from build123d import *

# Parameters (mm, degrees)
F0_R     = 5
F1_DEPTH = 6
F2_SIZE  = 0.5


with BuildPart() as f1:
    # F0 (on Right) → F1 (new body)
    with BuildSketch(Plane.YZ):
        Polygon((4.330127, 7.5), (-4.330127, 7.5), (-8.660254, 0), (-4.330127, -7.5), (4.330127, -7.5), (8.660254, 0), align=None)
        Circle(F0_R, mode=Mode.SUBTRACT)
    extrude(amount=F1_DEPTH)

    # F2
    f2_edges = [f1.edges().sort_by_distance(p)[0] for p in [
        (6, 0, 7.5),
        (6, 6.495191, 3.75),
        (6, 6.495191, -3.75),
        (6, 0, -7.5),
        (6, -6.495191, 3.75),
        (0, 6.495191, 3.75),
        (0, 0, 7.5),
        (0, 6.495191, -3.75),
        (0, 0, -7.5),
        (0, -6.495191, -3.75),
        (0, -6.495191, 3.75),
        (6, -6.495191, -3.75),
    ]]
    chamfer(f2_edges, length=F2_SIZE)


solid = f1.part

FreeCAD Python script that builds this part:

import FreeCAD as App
import Part
import Sketcher
from FreeCAD import Vector
Q = App.Units.Quantity


def edges_at(feature, points):
    """Names of the edges that pass closest to the given points."""
    edges = feature.Shape.Edges
    near = lambda p: min(range(len(edges)), key=lambda i: edges[i].distToShape(Part.Vertex(*p))[0])
    return sorted({f"Edge{near(p) + 1}" for p in points})

doc = App.newDocument("Part")
body = doc.addObject("PartDesign::Body", "Body")

# Sketch on YZ plane
sketch1 = doc.addObject("Sketcher::SketchObject", "Sketch")
body.addObject(sketch1)
sketch1.AttachmentSupport = (doc.YZ_Plane, [""])
sketch1.MapMode = "FlatFace"
sketch1.addGeometry([
    Part.LineSegment(Vector(4, 8, 0), Vector(-4, 8, 0)),  # 0
    Part.LineSegment(Vector(-4, 8, 0), Vector(-9, 0, 0)),  # 1
    Part.LineSegment(Vector(-9, 0, 0), Vector(-4, -8, 0)),  # 2
    Part.LineSegment(Vector(-4, -8, 0), Vector(4, -8, 0)),  # 3
    Part.LineSegment(Vector(4, -8, 0), Vector(9, 0, 0)),  # 4
    Part.LineSegment(Vector(9, 0, 0), Vector(4, 8, 0)),  # 5
    Part.Circle(Vector(0, 0, 0), Vector(0, 0, 1), 5),  # 6
], False)
sketch1.addConstraint([
    Sketcher.Constraint("Coincident", 0, 2, 1, 1),
    Sketcher.Constraint("Coincident", 1, 2, 2, 1),
    Sketcher.Constraint("Coincident", 2, 2, 3, 1),
    Sketcher.Constraint("Coincident", 3, 2, 4, 1),
    Sketcher.Constraint("Coincident", 4, 2, 5, 1),
    Sketcher.Constraint("Coincident", 5, 2, 0, 1),
    Sketcher.Constraint("Horizontal", 0),
    Sketcher.Constraint("Horizontal", 3),
    Sketcher.Constraint("Coincident", 6, 3, -1, 1),
    Sketcher.Constraint("Symmetric", 0, 2, 3, 2, -1, 1),
    Sketcher.Constraint("Symmetric", 1, 2, 4, 2, -1, 1),
    Sketcher.Constraint("PointOnObject", 1, 2, -1),
    Sketcher.Constraint("Parallel", 2, 5),
    Sketcher.Constraint("Vertical", 0, 2, 2, 2),
    Sketcher.Constraint("Diameter", 6, Q("10 mm")),
    Sketcher.Constraint("Angle", 1, Q("-120 deg")),
    Sketcher.Constraint("DistanceY", 2, 2, 0, 2, Q("15 mm")),
    Sketcher.Constraint("DistanceX", 0, 2, 0, 1, Q("8.660254 mm")),
])
pad1 = doc.addObject("PartDesign::Pad", "Pad")
body.addObject(pad1)
pad1.Profile = sketch1
pad1.Length = 6
doc.recompute()

chamfer = doc.addObject("PartDesign::Chamfer", "Chamfer")
body.addObject(chamfer)
chamfer.Base = (pad1, edges_at(pad1, [
    (6, 0, 7.5),
    (6, 6.495, 3.75),
    (6, 6.495, -3.75),
    (6, 0, -7.5),
    (6, -6.495, 3.75),
    (0, 6.495, 3.75),
    (0, 0, 7.5),
    (0, 6.495, -3.75),
    (0, 0, -7.5),
    (0, -6.495, -3.75),
    (0, -6.495, 3.75),
    (6, -6.495, -3.75),
]))
chamfer.Size = 0.5

doc.recompute()
